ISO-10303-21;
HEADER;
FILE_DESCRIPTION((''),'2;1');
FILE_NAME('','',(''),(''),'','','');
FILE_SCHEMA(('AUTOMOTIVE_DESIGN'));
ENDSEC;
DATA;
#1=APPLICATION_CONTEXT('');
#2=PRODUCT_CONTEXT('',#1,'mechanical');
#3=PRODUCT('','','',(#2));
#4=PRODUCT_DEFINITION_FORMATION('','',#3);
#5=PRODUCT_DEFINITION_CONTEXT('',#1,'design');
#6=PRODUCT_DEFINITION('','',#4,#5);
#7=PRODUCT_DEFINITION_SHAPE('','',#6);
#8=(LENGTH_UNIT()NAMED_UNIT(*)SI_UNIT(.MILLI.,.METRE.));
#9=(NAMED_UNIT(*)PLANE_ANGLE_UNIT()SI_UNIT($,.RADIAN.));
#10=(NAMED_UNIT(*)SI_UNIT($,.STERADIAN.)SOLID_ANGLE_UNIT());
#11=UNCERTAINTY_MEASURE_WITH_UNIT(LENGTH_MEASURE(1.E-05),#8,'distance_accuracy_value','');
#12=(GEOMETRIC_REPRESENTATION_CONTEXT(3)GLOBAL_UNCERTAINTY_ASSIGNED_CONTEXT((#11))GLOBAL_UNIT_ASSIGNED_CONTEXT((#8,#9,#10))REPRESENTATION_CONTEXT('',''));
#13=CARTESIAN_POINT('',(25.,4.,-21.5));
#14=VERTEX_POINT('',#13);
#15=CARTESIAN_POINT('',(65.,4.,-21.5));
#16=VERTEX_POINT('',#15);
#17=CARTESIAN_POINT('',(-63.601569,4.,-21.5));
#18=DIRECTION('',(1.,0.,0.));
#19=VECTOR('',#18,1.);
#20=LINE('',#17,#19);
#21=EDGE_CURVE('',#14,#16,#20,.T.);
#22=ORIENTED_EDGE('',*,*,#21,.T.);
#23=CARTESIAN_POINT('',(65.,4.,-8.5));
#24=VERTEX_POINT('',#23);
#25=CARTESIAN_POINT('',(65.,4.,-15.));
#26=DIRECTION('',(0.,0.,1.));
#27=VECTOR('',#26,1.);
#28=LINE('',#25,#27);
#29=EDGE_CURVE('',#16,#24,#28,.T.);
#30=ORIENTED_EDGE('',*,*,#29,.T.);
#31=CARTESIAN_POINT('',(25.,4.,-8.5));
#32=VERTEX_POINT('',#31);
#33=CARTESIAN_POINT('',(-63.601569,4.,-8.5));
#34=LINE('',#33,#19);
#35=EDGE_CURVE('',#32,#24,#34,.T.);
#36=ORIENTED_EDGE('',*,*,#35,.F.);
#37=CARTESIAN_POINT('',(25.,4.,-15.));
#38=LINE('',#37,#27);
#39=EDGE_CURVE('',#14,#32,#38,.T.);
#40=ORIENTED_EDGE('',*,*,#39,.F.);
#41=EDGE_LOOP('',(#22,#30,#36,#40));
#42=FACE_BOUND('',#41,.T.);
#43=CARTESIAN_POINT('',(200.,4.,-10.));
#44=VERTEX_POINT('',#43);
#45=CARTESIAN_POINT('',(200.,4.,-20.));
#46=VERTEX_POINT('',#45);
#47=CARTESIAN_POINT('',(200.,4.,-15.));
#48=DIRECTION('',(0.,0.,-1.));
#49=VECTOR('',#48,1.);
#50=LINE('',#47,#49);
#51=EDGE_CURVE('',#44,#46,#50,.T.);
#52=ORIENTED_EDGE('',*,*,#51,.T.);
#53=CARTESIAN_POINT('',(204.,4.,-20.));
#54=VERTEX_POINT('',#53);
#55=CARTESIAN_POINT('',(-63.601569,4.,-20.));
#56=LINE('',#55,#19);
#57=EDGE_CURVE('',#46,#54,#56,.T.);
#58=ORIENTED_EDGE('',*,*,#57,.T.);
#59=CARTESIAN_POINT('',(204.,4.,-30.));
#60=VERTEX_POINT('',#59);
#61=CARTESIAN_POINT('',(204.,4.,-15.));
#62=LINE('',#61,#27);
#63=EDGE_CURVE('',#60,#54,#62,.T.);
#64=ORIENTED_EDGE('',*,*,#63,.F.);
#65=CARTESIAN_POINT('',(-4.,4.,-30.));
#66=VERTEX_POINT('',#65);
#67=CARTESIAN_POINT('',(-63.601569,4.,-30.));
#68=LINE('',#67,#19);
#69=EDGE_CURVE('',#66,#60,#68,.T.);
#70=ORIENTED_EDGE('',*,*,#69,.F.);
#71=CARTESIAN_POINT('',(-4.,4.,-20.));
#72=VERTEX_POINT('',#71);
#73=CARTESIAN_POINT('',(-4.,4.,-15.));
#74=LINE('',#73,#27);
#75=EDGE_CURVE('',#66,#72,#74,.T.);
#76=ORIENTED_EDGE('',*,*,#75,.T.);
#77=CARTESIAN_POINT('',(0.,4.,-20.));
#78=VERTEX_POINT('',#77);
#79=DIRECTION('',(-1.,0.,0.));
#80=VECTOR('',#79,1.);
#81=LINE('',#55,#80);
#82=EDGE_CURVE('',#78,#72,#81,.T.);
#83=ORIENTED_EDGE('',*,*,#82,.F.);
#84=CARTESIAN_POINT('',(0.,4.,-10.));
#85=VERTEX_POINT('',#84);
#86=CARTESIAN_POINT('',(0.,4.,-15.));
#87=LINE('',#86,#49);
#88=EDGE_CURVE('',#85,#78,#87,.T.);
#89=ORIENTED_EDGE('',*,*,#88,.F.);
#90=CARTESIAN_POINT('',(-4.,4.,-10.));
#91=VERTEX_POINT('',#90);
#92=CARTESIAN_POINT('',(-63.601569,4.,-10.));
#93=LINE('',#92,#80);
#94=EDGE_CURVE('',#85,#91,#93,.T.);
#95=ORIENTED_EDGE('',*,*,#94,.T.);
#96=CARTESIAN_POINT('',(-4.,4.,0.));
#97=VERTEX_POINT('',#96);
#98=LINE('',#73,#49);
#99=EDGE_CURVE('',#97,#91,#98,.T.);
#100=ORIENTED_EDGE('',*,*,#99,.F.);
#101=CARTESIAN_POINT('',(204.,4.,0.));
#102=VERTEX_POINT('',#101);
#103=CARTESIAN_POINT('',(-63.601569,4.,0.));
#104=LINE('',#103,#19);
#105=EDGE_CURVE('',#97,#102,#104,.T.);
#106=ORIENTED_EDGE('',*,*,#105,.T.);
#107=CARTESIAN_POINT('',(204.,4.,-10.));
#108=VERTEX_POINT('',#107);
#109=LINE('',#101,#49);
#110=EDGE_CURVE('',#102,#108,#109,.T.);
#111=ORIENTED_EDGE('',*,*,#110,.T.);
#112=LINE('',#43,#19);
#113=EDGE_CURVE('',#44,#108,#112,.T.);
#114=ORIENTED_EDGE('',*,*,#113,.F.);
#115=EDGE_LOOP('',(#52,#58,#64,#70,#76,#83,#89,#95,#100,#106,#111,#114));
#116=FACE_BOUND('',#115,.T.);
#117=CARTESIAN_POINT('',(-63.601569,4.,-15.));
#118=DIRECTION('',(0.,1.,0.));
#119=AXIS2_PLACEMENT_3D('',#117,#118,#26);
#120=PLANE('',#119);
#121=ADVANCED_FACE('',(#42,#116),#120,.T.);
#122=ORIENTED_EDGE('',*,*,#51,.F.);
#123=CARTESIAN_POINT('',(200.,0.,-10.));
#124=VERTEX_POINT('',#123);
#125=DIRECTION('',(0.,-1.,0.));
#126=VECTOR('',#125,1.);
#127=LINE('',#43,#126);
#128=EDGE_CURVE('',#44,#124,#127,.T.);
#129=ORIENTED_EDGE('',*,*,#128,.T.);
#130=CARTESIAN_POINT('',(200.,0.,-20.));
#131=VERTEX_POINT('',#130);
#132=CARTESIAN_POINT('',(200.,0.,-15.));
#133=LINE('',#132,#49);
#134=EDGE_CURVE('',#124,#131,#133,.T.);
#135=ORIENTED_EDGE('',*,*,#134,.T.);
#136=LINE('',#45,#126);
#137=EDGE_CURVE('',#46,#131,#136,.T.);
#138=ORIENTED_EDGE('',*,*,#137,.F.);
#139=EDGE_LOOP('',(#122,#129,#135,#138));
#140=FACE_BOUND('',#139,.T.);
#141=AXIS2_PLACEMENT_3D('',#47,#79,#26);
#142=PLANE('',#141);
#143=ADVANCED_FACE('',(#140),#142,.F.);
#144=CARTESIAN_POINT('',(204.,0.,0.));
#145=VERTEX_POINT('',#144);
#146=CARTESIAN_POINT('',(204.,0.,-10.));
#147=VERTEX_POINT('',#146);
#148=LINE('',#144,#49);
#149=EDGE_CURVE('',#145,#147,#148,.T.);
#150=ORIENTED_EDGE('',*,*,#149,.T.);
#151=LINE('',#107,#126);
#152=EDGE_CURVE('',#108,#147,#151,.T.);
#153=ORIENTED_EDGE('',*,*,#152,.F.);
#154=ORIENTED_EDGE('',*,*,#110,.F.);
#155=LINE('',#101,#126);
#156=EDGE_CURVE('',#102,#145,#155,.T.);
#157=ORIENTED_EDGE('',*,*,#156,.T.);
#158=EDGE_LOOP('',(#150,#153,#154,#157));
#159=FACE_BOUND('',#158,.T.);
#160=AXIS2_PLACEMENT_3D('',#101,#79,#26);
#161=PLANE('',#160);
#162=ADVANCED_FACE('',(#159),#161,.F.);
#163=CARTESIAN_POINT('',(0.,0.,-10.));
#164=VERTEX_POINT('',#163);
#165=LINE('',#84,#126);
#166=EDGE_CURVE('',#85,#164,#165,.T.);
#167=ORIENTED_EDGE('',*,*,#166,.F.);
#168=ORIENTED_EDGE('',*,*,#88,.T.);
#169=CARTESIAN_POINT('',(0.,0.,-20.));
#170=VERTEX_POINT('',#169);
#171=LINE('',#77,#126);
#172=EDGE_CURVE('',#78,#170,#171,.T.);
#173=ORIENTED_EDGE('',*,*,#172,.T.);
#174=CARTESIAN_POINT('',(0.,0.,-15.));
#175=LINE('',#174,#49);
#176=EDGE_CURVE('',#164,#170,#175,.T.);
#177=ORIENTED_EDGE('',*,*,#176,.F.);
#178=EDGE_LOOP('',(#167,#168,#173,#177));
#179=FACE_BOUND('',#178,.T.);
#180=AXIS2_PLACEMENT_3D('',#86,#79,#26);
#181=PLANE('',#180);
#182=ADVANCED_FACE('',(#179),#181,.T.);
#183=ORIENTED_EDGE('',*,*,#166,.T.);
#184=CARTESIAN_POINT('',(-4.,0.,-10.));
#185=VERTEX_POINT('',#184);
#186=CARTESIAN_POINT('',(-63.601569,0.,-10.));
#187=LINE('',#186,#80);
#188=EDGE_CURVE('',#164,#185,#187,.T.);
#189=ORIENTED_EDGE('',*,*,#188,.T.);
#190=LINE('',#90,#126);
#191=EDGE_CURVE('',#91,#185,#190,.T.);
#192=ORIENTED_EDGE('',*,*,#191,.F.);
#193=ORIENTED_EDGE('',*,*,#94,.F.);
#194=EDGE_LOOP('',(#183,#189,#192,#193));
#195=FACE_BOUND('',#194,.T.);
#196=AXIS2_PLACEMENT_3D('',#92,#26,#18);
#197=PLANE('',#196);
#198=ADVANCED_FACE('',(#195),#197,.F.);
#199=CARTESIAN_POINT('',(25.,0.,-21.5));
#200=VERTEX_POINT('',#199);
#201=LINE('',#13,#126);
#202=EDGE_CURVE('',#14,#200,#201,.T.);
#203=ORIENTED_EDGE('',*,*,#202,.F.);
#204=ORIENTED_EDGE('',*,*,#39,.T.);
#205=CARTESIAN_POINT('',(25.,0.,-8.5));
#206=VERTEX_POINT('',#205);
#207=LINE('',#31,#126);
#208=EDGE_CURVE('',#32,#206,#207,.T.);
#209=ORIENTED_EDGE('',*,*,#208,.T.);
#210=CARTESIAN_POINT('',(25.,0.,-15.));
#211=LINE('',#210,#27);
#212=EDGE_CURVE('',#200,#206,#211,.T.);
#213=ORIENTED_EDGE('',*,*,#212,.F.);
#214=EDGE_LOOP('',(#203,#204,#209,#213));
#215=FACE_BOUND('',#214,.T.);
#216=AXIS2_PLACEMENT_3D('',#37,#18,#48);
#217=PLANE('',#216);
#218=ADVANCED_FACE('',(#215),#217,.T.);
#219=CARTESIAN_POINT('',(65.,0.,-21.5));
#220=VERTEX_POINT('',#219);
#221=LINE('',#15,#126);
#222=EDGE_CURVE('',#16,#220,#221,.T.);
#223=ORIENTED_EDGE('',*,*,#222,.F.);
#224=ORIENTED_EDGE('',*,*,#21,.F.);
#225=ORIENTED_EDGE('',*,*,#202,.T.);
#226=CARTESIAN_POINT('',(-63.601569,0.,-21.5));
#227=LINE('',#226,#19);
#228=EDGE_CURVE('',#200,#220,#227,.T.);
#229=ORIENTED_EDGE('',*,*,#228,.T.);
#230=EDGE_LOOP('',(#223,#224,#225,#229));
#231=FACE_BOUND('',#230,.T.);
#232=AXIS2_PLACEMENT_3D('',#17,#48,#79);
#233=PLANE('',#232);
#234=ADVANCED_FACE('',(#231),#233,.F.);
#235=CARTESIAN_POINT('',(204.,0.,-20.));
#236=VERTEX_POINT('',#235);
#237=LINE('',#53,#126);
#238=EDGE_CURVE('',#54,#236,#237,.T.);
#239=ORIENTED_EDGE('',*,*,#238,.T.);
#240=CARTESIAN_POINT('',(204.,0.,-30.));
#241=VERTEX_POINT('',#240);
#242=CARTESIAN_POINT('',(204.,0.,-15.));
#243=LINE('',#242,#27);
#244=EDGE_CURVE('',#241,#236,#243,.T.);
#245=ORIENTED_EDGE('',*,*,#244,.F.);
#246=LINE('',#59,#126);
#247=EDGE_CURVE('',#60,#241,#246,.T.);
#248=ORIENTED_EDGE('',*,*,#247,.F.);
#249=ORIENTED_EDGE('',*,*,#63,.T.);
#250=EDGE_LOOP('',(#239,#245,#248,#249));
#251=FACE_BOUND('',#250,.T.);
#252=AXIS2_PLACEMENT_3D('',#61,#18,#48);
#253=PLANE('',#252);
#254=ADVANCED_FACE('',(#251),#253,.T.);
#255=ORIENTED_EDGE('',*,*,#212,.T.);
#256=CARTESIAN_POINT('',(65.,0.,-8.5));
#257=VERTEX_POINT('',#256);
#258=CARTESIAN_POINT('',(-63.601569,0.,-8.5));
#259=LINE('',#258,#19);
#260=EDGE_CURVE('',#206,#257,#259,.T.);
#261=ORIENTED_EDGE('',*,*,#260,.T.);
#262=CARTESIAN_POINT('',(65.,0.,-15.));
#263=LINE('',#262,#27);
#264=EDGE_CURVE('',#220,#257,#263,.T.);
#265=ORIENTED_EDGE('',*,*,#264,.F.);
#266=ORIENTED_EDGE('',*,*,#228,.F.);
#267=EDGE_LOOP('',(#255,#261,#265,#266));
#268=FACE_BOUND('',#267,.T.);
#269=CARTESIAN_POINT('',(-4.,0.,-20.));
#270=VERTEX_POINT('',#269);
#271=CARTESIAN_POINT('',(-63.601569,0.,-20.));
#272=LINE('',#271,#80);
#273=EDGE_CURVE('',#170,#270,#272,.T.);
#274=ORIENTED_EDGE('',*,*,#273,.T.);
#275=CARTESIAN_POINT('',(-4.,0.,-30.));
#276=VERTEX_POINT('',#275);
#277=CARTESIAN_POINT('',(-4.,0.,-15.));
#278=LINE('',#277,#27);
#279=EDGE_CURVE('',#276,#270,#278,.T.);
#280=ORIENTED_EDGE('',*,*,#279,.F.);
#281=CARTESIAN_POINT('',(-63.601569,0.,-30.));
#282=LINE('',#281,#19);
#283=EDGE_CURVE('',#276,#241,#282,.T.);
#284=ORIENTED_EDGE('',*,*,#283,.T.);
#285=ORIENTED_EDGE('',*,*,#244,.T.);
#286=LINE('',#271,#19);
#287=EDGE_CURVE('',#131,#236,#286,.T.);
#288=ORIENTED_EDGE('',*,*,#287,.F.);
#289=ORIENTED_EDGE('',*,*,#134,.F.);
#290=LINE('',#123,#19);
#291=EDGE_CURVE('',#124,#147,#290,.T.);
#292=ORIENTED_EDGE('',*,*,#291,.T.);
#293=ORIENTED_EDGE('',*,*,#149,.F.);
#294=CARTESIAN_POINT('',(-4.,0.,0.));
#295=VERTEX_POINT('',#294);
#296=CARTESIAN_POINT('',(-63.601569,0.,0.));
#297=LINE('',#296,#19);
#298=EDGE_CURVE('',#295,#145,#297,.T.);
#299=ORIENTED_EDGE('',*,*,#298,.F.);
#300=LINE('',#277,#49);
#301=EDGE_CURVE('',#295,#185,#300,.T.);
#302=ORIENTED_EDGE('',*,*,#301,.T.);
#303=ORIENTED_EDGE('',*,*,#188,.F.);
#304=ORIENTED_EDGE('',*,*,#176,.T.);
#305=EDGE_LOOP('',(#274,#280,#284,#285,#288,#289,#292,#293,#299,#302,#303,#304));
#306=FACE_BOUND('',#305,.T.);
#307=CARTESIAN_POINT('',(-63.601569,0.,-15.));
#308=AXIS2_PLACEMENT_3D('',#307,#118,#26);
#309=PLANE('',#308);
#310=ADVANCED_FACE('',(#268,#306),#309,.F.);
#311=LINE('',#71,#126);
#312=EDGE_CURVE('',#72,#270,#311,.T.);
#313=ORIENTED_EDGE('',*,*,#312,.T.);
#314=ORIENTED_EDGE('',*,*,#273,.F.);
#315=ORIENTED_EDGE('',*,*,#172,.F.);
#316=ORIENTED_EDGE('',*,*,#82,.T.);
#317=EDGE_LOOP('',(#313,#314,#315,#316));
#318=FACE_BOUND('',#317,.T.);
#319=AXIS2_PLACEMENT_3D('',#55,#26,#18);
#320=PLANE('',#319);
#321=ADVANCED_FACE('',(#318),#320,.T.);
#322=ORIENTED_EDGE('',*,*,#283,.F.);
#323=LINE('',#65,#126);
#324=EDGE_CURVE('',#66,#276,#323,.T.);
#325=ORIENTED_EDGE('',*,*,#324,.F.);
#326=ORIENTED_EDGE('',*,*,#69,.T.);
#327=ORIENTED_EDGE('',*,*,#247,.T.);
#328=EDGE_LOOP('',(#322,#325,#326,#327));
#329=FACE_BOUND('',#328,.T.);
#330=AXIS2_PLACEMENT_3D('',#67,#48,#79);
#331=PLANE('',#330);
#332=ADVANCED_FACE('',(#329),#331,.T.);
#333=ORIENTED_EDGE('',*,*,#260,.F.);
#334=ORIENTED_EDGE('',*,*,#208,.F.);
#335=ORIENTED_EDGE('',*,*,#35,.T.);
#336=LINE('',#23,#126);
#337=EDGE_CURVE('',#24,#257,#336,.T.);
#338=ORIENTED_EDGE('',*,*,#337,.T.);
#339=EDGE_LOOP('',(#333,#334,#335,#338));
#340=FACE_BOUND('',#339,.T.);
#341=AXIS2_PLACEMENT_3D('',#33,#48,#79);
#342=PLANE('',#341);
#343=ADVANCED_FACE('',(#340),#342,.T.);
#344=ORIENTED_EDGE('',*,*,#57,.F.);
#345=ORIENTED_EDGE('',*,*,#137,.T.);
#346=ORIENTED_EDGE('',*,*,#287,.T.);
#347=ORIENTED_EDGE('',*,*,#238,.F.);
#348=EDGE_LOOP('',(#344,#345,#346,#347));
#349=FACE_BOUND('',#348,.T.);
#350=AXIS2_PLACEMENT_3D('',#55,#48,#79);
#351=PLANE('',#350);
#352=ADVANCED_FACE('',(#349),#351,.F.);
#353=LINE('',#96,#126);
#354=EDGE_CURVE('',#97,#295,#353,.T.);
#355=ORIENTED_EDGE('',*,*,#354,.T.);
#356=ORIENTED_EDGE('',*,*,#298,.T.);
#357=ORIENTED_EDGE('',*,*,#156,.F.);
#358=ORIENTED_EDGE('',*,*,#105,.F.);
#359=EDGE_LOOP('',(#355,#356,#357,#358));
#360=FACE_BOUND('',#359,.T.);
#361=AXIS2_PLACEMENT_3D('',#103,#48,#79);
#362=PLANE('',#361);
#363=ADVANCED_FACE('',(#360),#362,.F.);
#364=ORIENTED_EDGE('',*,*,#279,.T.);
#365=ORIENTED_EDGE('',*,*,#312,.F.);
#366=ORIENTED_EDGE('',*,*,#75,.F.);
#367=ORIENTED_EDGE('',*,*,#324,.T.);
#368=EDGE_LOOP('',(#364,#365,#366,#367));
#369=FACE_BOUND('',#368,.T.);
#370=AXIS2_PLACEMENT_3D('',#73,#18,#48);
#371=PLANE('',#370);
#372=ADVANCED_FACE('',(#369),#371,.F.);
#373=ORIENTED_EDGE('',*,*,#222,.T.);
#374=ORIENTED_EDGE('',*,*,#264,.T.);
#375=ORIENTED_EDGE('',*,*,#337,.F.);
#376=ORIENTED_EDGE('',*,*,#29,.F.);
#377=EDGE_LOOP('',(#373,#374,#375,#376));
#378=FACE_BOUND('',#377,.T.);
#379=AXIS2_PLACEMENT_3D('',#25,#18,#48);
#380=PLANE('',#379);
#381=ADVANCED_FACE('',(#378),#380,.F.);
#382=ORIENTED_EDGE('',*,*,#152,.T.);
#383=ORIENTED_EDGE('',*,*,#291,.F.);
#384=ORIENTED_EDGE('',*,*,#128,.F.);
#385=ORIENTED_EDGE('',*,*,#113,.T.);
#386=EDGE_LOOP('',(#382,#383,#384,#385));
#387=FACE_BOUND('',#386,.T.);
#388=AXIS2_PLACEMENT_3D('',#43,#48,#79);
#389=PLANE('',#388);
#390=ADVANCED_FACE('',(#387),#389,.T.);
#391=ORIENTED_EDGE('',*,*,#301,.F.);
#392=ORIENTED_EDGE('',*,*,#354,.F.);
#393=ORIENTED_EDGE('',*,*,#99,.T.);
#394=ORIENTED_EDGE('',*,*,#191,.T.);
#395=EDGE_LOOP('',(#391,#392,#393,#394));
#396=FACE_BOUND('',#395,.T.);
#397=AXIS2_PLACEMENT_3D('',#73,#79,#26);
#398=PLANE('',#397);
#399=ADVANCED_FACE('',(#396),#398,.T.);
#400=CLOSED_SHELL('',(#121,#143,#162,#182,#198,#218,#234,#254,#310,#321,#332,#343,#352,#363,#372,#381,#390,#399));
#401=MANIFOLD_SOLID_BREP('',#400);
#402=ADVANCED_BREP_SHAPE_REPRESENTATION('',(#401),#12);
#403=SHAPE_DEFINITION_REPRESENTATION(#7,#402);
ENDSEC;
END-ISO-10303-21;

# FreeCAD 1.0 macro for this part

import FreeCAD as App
import Part
import Sketcher
from FreeCAD import Vector
Q = App.Units.Quantity


def add_polygon(sketch, points):
    """Adds a closed chain of lines whose ends are joined by coincident constraints."""
    first, n = sketch.GeometryCount, len(points)
    for a, b in zip(points, points[1:] + points[:1]):
        sketch.addGeometry(Part.LineSegment(App.Vector(*a, 0), App.Vector(*b, 0)), False)
    for i in range(n):
        sketch.addConstraint(Sketcher.Constraint("Coincident", first + i, 2, first + (i + 1) % n, 1))

doc = App.newDocument("Part")
body = doc.addObject("PartDesign::Body", "Body")

# Sketch on XZ plane
sketch1 = doc.addObject("Sketcher::SketchObject", "Sketch")
body.addObject(sketch1)
sketch1.AttachmentSupport = (doc.XZ_Plane, [""])
sketch1.MapMode = "FlatFace"
add_polygon(sketch1, [(0, -20), (0, -10), (-4, -10), (-4, 0), (204, 0), (204, -10), (200, -10), (200, -20), (204, -20), (204, -30), (-4, -30), (-4, -20)])  # lines 0-11
add_polygon(sketch1, [(65, -8.5), (25, -8.5), (25, -21.5), (65, -21.5)])  # lines 12-15
sketch1.addConstraint([
    Sketcher.Constraint("Vertical", 0),
    Sketcher.Constraint("Horizontal", 1),
    Sketcher.Constraint("Vertical", 2),
    Sketcher.Constraint("Horizontal", 3),
    Sketcher.Constraint("Vertical", 4),
    Sketcher.Constraint("Horizontal", 5),
    Sketcher.Constraint("Vertical", 6),
    Sketcher.Constraint("Horizontal", 7),
    Sketcher.Constraint("Vertical", 8),
    Sketcher.Constraint("Horizontal", 9),
    Sketcher.Constraint("Vertical", 10),
    Sketcher.Constraint("Horizontal", 11),
    Sketcher.Constraint("Horizontal", 12),
    Sketcher.Constraint("Vertical", 13),
    Sketcher.Constraint("Horizontal", 14),
    Sketcher.Constraint("Vertical", 15),
    Sketcher.Constraint("PointOnObject", 0, 2, -2),
    Sketcher.Constraint("PointOnObject", 2, 2, -1),
    Sketcher.Constraint("Horizontal", 1, 2, 4, 2),
    Sketcher.Constraint("Horizontal", 7, 2, 10, 2),
    Sketcher.Constraint("Vertical", 4, 2, 7, 2),
    Sketcher.Constraint("Vertical", 2, 2, 9, 2),
    Sketcher.Constraint("Equal", 1, 5),
    Sketcher.Constraint("Equal", 0, 2),
    Sketcher.Constraint("Equal", 6, 8),
    Sketcher.Constraint("DistanceX", 1, 2, 1, 1, Q("4 mm")),
    Sketcher.Constraint("DistanceX", 3, 1, 3, 2, Q("208 mm")),
    Sketcher.Constraint("DistanceX", 12, 2, 12, 1, Q("40 mm")),
    Sketcher.Constraint("DistanceY", 0, 1, 0, 2, Q("10 mm")),
    Sketcher.Constraint("DistanceY", 13, 2, 13, 1, Q("13 mm")),
    Sketcher.Constraint("DistanceX", -1, 1, 12, 2, Q("25 mm")),
    Sketcher.Constraint("DistanceY", 12, 2, -1, 1, Q("8.5 mm")),
])
pad1 = doc.addObject("PartDesign::Pad", "Pad")
body.addObject(pad1)
pad1.Profile = sketch1
pad1.Length = 4
pad1.Reversed = True

doc.recompute()
